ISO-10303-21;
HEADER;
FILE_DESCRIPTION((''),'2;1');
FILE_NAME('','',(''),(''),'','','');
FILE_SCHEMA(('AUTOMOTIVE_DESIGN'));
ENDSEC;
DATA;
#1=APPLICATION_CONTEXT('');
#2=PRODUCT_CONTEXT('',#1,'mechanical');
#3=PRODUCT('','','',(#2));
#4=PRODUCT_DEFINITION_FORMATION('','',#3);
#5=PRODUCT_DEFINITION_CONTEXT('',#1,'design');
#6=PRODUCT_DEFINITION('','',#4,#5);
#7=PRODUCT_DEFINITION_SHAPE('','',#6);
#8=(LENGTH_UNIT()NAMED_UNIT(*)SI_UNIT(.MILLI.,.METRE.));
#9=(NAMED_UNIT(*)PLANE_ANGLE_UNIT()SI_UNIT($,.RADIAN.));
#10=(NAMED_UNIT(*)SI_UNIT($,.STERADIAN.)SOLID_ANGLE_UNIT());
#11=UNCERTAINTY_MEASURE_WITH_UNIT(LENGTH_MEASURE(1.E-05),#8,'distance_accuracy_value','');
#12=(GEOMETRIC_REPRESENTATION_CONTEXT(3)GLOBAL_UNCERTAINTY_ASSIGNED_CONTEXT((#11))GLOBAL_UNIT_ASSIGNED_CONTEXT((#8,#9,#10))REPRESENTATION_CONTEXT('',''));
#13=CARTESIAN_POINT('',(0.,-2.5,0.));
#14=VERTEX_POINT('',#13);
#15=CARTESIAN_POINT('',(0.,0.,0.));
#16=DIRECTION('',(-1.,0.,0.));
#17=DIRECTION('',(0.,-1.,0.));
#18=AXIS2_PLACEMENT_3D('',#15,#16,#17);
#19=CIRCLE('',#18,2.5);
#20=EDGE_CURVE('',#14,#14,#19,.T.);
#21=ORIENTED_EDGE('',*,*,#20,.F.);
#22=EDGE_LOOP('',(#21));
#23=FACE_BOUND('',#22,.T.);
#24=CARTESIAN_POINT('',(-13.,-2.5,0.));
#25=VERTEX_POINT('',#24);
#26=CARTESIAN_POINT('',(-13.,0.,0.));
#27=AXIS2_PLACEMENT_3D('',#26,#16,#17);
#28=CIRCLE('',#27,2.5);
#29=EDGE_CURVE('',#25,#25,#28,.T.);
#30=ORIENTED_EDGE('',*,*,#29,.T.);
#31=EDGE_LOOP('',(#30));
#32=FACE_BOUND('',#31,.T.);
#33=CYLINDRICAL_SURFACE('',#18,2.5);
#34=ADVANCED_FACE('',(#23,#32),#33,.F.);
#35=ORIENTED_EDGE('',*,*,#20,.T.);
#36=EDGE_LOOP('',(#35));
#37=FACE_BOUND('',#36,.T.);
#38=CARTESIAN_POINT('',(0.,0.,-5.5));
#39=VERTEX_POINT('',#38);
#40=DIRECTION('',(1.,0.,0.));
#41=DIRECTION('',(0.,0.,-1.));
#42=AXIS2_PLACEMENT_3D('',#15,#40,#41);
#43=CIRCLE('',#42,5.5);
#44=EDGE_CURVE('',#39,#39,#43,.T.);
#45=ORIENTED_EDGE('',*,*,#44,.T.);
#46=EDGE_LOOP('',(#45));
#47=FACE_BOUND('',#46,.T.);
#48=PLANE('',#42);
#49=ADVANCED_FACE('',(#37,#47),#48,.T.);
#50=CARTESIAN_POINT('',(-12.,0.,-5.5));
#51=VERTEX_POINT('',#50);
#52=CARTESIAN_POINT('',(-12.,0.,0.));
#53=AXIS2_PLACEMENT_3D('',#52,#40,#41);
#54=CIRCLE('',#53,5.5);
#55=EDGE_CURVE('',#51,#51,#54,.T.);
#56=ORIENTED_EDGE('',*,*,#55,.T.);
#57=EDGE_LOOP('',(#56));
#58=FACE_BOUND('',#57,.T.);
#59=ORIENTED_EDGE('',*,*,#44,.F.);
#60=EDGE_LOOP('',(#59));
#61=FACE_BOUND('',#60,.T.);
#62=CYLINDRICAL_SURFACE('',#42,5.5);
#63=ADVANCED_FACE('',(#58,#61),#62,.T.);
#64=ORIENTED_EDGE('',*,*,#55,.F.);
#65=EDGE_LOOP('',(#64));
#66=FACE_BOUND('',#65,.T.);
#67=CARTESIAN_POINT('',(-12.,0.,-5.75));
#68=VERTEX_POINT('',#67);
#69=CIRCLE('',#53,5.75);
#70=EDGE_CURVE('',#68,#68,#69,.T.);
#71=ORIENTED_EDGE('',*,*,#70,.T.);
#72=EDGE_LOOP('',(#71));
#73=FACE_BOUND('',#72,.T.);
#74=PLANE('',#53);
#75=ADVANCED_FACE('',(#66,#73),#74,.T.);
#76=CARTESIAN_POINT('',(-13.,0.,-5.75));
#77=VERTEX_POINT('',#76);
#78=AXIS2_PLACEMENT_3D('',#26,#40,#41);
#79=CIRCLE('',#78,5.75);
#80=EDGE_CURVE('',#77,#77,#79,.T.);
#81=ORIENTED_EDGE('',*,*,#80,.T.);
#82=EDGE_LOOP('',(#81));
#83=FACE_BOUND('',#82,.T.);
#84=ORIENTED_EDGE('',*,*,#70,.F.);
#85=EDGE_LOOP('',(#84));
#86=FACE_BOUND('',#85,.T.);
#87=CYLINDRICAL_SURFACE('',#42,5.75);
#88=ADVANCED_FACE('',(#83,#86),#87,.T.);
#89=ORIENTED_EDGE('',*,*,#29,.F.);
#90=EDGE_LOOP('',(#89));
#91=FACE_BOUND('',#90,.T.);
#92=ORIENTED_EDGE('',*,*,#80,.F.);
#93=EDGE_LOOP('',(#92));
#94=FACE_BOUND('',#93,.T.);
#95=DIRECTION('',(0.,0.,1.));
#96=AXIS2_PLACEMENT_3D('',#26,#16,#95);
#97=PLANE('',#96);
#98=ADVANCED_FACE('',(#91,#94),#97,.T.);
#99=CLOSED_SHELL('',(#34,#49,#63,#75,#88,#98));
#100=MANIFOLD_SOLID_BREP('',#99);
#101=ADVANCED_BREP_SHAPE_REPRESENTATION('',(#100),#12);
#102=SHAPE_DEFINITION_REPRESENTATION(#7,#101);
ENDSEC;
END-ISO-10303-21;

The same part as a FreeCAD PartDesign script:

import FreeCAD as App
import Part
import Sketcher
from FreeCAD import Vector
Q = App.Units.Quantity

doc = App.newDocument("Part")
body = doc.addObject("PartDesign::Body", "Body")

sketch1 = doc.addObject("Sketcher::SketchObject", "Sketch")
body.addObject(sketch1)
sketch1.AttachmentSupport = (doc.XY_Plane, [""])
sketch1.MapMode = "FlatFace"
sketch1.addGeometry([
    Part.LineSegment(Vector(-13, 0, 0), Vector(0, 0, 0)),
    Part.LineSegment(Vector(0, 0, 0), Vector(0, 5.5, 0)),
    Part.LineSegment(Vector(0, 5.5, 0), Vector(-12, 5.5, 0)),
    Part.LineSegment(Vector(-12, 5.5, 0), Vector(-12, 5.75, 0)),
    Part.LineSegment(Vector(-12, 5.75, 0), Vector(-13, 5.75, 0)),
    Part.LineSegment(Vector(-13, 5.75, 0), Vector(-13, 0, 0)),
], False)
sketch1.addConstraint([
    Sketcher.Constraint("Coincident", 0, 2, 1, 1),
    Sketcher.Constraint("Coincident", 1, 2, 2, 1),
    Sketcher.Constraint("Coincident", 2, 2, 3, 1),
    Sketcher.Constraint("Coincident", 3, 2, 4, 1),
    Sketcher.Constraint("Coincident", 4, 2, 5, 1),
    Sketcher.Constraint("Coincident", 5, 2, 0, 1),
    Sketcher.Constraint("Horizontal", 0),
    Sketcher.Constraint("Vertical", 1),
    Sketcher.Constraint("Horizontal", 2),
    Sketcher.Constraint("Vertical", 3),
    Sketcher.Constraint("Horizontal", 4),
    Sketcher.Constraint("Vertical", 5),
    Sketcher.Constraint("Coincident", 0, 2, -1, 1),
    Sketcher.Constraint("DistanceX", 0, 1, 0, 2, Q("13 mm")),
    Sketcher.Constraint("DistanceX", 2, 2, 2, 1, Q("12 mm")),
    Sketcher.Constraint("DistanceY", 1, 1, 1, 2, Q("5.5 mm")),
    Sketcher.Constraint("DistanceY", 3, 1, 3, 2, Q("0.25 mm")),
])
revolution = doc.addObject("PartDesign::Revolution", "Revolution")
body.addObject(revolution)
revolution.Profile = sketch1
revolution.ReferenceAxis = (sketch1, ["H_Axis"])
revolution.Angle = 360

sketch2 = doc.addObject("Sketcher::SketchObject", "Sketch001")
body.addObject(sketch2)
sketch2.AttachmentSupport = (doc.YZ_Plane, [""])
sketch2.MapMode = "FlatFace"
sketch2.AttachmentOffset = App.Placement(Vector(0, 0, -13), App.Rotation())
sketch2.addGeometry(Part.Circle(Vector(0, 0, 0), Vector(0, 0, 1), 2.5), False)
sketch2.addConstraint([
    Sketcher.Constraint("Coincident", 0, 3, -1, 1),
    Sketcher.Constraint("Diameter", 0, Q("5 mm")),
])
pocket1 = doc.addObject("PartDesign::Pocket", "Pocket")
body.addObject(pocket1)
pocket1.Profile = sketch2
pocket1.Type = "ThroughAll"
pocket1.Reversed = True

doc.recompute()
